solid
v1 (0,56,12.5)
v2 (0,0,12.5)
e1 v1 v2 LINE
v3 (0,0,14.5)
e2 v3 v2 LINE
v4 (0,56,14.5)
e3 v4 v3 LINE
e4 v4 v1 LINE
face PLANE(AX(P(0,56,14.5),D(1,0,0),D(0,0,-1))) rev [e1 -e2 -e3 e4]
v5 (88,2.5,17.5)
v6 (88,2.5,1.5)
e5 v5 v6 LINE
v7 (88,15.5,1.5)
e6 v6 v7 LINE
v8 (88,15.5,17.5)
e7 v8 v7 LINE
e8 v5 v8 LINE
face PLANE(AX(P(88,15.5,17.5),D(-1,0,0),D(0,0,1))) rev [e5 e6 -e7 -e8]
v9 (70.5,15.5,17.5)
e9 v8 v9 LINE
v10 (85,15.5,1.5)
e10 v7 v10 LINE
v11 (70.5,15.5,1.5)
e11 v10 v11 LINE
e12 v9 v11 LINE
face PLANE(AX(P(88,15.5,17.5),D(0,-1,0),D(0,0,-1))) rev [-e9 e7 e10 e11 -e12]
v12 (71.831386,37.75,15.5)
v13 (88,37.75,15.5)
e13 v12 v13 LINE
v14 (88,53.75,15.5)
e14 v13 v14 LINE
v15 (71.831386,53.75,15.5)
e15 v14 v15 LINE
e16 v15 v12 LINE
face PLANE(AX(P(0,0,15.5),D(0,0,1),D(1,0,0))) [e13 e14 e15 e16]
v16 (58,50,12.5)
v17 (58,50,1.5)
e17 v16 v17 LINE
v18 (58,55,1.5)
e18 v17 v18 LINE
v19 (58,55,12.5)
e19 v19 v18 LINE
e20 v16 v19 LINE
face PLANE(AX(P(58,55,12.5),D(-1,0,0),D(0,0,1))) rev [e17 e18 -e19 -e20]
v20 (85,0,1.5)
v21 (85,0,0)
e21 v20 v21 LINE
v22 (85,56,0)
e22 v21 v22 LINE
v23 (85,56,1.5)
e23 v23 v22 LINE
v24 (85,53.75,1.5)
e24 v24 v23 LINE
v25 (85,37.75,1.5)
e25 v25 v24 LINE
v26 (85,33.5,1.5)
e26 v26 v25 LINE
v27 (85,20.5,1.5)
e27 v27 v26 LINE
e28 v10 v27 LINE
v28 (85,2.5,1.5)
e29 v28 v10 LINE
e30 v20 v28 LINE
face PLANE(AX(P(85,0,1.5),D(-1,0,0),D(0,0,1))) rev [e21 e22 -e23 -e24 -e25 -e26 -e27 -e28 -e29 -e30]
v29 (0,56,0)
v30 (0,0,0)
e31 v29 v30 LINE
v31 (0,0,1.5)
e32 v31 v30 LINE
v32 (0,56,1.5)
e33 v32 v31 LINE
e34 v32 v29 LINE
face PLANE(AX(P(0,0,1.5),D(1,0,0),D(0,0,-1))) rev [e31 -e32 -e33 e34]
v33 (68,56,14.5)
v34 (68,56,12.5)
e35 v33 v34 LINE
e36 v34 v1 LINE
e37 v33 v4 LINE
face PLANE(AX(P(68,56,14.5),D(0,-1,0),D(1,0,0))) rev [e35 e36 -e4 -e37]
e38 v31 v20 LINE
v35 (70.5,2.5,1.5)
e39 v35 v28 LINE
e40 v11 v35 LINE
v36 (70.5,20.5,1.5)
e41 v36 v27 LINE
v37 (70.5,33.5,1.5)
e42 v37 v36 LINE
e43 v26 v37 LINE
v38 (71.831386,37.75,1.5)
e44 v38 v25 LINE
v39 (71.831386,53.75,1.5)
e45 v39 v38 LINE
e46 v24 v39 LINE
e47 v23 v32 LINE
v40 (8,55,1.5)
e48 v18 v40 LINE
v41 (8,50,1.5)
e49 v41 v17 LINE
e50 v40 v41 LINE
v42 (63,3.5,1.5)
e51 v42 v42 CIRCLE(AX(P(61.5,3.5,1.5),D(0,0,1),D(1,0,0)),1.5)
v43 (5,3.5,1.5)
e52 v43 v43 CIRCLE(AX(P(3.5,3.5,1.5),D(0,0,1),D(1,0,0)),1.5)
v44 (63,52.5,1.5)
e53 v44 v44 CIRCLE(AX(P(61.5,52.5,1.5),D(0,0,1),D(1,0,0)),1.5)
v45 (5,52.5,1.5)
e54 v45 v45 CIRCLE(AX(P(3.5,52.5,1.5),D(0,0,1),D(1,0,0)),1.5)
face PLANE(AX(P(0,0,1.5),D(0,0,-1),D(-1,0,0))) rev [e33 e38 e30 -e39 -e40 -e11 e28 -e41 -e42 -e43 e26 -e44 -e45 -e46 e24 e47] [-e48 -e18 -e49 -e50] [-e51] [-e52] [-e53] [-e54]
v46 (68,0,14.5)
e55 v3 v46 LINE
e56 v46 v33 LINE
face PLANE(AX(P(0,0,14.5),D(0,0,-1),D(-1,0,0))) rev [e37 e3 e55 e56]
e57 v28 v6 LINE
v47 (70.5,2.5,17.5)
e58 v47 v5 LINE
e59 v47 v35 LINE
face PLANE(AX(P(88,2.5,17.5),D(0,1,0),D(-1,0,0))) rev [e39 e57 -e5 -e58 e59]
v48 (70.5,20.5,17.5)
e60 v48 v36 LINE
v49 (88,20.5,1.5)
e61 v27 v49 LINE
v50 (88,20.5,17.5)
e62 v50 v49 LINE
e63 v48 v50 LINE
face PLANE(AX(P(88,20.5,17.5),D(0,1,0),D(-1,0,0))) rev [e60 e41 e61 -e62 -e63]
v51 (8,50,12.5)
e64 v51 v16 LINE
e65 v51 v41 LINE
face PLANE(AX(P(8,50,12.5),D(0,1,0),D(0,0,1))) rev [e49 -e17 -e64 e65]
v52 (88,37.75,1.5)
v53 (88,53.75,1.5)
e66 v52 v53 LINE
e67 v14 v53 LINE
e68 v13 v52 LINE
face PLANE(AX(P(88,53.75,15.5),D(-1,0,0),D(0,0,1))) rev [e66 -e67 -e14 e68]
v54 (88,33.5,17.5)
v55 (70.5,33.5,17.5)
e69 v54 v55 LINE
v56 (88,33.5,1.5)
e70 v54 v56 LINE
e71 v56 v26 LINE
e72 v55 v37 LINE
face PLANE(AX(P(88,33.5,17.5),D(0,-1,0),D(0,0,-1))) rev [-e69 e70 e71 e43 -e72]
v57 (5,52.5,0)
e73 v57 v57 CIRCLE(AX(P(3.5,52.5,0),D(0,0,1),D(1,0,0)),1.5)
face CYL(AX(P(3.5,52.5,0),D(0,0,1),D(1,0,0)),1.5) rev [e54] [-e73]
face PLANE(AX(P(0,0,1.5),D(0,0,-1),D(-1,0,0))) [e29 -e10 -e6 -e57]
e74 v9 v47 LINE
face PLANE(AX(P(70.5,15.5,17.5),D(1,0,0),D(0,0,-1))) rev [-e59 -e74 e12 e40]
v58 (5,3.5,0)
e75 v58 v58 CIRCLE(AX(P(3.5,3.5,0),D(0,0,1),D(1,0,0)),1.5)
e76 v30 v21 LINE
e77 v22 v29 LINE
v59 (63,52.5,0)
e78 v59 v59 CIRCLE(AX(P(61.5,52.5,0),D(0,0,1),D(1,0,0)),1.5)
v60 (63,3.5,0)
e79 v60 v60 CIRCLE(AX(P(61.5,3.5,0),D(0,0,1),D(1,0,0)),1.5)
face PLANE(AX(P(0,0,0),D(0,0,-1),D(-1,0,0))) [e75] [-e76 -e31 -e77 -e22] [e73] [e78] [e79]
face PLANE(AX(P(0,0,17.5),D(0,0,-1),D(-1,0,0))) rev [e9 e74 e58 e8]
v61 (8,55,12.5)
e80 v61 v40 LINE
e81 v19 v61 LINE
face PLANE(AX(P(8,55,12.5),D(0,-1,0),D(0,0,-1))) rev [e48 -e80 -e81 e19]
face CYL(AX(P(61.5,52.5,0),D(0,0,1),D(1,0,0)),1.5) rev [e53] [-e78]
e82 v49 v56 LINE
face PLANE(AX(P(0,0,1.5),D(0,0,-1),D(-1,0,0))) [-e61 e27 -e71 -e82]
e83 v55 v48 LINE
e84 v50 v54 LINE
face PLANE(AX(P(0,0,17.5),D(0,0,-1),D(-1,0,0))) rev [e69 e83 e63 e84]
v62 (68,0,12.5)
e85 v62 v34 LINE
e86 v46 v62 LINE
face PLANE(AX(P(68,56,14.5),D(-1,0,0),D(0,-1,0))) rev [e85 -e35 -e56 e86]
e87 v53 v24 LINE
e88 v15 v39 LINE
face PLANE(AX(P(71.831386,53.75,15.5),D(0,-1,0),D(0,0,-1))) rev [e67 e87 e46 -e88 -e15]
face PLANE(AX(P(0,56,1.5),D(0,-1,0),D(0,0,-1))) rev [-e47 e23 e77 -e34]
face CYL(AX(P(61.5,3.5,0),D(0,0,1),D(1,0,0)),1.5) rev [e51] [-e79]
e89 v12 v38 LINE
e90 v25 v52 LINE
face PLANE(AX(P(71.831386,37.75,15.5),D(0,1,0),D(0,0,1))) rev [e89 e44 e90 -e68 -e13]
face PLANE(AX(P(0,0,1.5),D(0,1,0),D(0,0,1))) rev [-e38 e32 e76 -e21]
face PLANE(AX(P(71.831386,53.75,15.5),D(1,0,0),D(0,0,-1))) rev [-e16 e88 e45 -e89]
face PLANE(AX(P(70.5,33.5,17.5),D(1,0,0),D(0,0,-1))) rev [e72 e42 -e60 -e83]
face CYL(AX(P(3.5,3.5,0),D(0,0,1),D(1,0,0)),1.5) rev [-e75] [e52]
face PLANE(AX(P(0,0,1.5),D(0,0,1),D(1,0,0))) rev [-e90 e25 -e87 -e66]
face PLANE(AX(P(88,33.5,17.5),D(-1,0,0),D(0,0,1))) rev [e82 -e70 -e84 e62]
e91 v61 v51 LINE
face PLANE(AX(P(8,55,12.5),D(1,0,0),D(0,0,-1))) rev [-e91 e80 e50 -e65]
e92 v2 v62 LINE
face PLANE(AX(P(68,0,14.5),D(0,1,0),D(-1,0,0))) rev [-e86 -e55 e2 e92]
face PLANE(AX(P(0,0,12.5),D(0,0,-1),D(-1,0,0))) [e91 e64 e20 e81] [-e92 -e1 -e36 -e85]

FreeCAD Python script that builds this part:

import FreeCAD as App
import Part
import Sketcher
from FreeCAD import Vector
Q = App.Units.Quantity

doc = App.newDocument("Part")
params = doc.addObject("Spreadsheet::Sheet", "Params")
for row, (alias, value) in enumerate([
    ("sketch1_width", "85 mm"),
    ("sketch1_height", "56 mm"),
    ("pad1_length", "1.5 mm"),
    ("sketch2_diameter", "3 mm"),
    ("sketch3_height", "13 mm"),
    ("sketch3_width", "17.5 mm"),
    ("pad2_length", "16 mm"),
    ("sketch4_height", "16 mm"),
    ("pad3_length", "14 mm"),
    ("sketch5_width", "50 mm"),
    ("sketch5_height", "5 mm"),
    ("pad4_length", "11 mm"),
    ("sketch6_width", "68 mm"),
    ("sketch6_height", "56 mm"),
    ("pad5_length", "2 mm"),
], start=1):
    params.set(f"A{row}", alias)
    params.set(f"B{row}", "=" + value)
    params.setAlias(f"B{row}", alias)

body = doc.addObject("PartDesign::Body", "Body")

sketch1 = doc.addObject("Sketcher::SketchObject", "Sketch")
body.addObject(sketch1)
sketch1.AttachmentSupport = (doc.XY_Plane, [""])
sketch1.MapMode = "FlatFace"
sketch1.addGeometry([
    Part.LineSegment(Vector(0, 56, 0), Vector(0, 0, 0)),
    Part.LineSegment(Vector(0, 0, 0), Vector(85, 0, 0)),
    Part.LineSegment(Vector(85, 0, 0), Vector(85, 56, 0)),
    Part.LineSegment(Vector(85, 56, 0), Vector(0, 56, 0)),
], False)
sketch1.addConstraint([
    Sketcher.Constraint("Coincident", 0, 2, 1, 1),
    Sketcher.Constraint("Coincident", 1, 2, 2, 1),
    Sketcher.Constraint("Coincident", 2, 2, 3, 1),
    Sketcher.Constraint("Coincident", 3, 2, 0, 1),
    Sketcher.Constraint("Vertical", 0),
    Sketcher.Constraint("Horizontal", 1),
    Sketcher.Constraint("Vertical", 2),
    Sketcher.Constraint("Horizontal", 3),
    Sketcher.Constraint("Coincident", 0, 2, -1, 1),
    Sketcher.Constraint("DistanceX", 1, 1, 1, 2, Q("85 mm")),
    Sketcher.Constraint("DistanceY", 0, 2, 0, 1, Q("56 mm")),
])
sketch1.setExpression("Constraints[9]", "Params.sketch1_width")
sketch1.setExpression("Constraints[10]", "Params.sketch1_height")
pad1 = doc.addObject("PartDesign::Pad", "Pad")
body.addObject(pad1)
pad1.Profile = sketch1
pad1.setExpression("Length", "Params.pad1_length")

sketch2 = doc.addObject("Sketcher::SketchObject", "Sketch001")
body.addObject(sketch2)
sketch2.AttachmentSupport = (doc.XY_Plane, [""])
sketch2.MapMode = "FlatFace"
sketch2.AttachmentOffset = App.Placement(Vector(0, 0, 1.5), App.Rotation())
sketch2.addGeometry([
    Part.Circle(Vector(3.5, 52.5, 0), Vector(0, 0, 1), 1.5),
    Part.Circle(Vector(3.5, 3.5, 0), Vector(0, 0, 1), 1.5),
    Part.Circle(Vector(61.5, 52.5, 0), Vector(0, 0, 1), 1.5),
    Part.Circle(Vector(61.5, 3.5, 0), Vector(0, 0, 1), 1.5),
], False)
sketch2.addConstraint([
    Sketcher.Constraint("Equal", 0, 1),
    Sketcher.Constraint("Equal", 1, 2),
    Sketcher.Constraint("Equal", 2, 3),
    Sketcher.Constraint("Horizontal", 0, 3, 2, 3),
    Sketcher.Constraint("Horizontal", 1, 3, 3, 3),
    Sketcher.Constraint("Vertical", 0, 3, 1, 3),
    Sketcher.Constraint("Vertical", 2, 3, 3, 3),
    Sketcher.Constraint("Diameter", 0, Q("3 mm")),
    Sketcher.Constraint("DistanceY", 1, 3, 0, 3, Q("49 mm")),
    Sketcher.Constraint("DistanceX", 0, 3, 2, 3, Q("58 mm")),
    Sketcher.Constraint("DistanceX", -1, 1, 0, 3, Q("3.5 mm")),
    Sketcher.Constraint("DistanceY", -1, 1, 0, 3, Q("52.5 mm")),
])
sketch2.setExpression("Constraints[7]", "Params.sketch2_diameter")
pocket1 = doc.addObject("PartDesign::Pocket", "Pocket")
body.addObject(pocket1)
pocket1.Profile = sketch2
pocket1.Type = "ThroughAll"

sketch3 = doc.addObject("Sketcher::SketchObject", "Sketch002")
body.addObject(sketch3)
sketch3.AttachmentSupport = (doc.XY_Plane, [""])
sketch3.MapMode = "FlatFace"
sketch3.AttachmentOffset = App.Placement(Vector(0, 0, 1.5), App.Rotation())
sketch3.addGeometry([
    Part.LineSegment(Vector(70.5, 15.5, 0), Vector(70.5, 2.5, 0)),
    Part.LineSegment(Vector(70.5, 2.5, 0), Vector(88, 2.5, 0)),
    Part.LineSegment(Vector(88, 2.5, 0), Vector(88, 15.5, 0)),
    Part.LineSegment(Vector(88, 15.5, 0), Vector(70.5, 15.5, 0)),
    Part.LineSegment(Vector(70.5, 33.5, 0), Vector(70.5, 20.5, 0)),
    Part.LineSegment(Vector(70.5, 20.5, 0), Vector(88, 20.5, 0)),
    Part.LineSegment(Vector(88, 20.5, 0), Vector(88, 33.5, 0)),
    Part.LineSegment(Vector(88, 33.5, 0), Vector(70.5, 33.5, 0)),
], False)
sketch3.addConstraint([
    Sketcher.Constraint("Coincident", 0, 2, 1, 1),
    Sketcher.Constraint("Coincident", 1, 2, 2, 1),
    Sketcher.Constraint("Coincident", 2, 2, 3, 1),
    Sketcher.Constraint("Coincident", 3, 2, 0, 1),
    Sketcher.Constraint("Coincident", 4, 2, 5, 1),
    Sketcher.Constraint("Coincident", 5, 2, 6, 1),
    Sketcher.Constraint("Coincident", 6, 2, 7, 1),
    Sketcher.Constraint("Coincident", 7, 2, 4, 1),
    Sketcher.Constraint("Vertical", 0),
    Sketcher.Constraint("Horizontal", 1),
    Sketcher.Constraint("Vertical", 2),
    Sketcher.Constraint("Horizontal", 3),
    Sketcher.Constraint("Vertical", 4),
    Sketcher.Constraint("Horizontal", 5),
    Sketcher.Constraint("Vertical", 6),
    Sketcher.Constraint("Horizontal", 7),
    Sketcher.Constraint("Vertical", 3, 2, 4, 2),
    Sketcher.Constraint("Vertical", 2, 2, 5, 2),
    Sketcher.Constraint("Equal", 2, 4),
    Sketcher.Constraint("DistanceY", 0, 2, 0, 1, Q("13 mm")),
    Sketcher.Constraint("DistanceX", 1, 1, 1, 2, Q("17.5 mm")),
    Sketcher.Constraint("DistanceX", -1, 1, 1, 2, Q("88 mm")),
    Sketcher.Constraint("DistanceY", 3, 2, 4, 2, Q("5 mm")),
    Sketcher.Constraint("DistanceY", -1, 1, 0, 2, Q("2.5 mm")),
])
sketch3.setExpression("Constraints[19]", "Params.sketch3_height")
sketch3.setExpression("Constraints[20]", "Params.sketch3_width")
pad2 = doc.addObject("PartDesign::Pad", "Pad001")
body.addObject(pad2)
pad2.Profile = sketch3
pad2.setExpression("Length", "Params.pad2_length")

sketch4 = doc.addObject("Sketcher::SketchObject", "Sketch003")
body.addObject(sketch4)
sketch4.AttachmentSupport = (doc.XY_Plane, [""])
sketch4.MapMode = "FlatFace"
sketch4.AttachmentOffset = App.Placement(Vector(0, 0, 1.5), App.Rotation())
sketch4.addGeometry([
    Part.LineSegment(Vector(71.831386, 53.75, 0), Vector(71.831386, 37.75, 0)),
    Part.LineSegment(Vector(71.831386, 37.75, 0), Vector(88, 37.75, 0)),
    Part.LineSegment(Vector(88, 37.75, 0), Vector(88, 53.75, 0)),
    Part.LineSegment(Vector(88, 53.75, 0), Vector(71.831386, 53.75, 0)),
], False)
sketch4.addConstraint([
    Sketcher.Constraint("Coincident", 0, 2, 1, 1),
    Sketcher.Constraint("Coincident", 1, 2, 2, 1),
    Sketcher.Constraint("Coincident", 2, 2, 3, 1),
    Sketcher.Constraint("Coincident", 3, 2, 0, 1),
    Sketcher.Constraint("Vertical", 0),
    Sketcher.Constraint("Horizontal", 1),
    Sketcher.Constraint("Vertical", 2),
    Sketcher.Constraint("Horizontal", 3),
    Sketcher.Constraint("DistanceY", 0, 2, 0, 1, Q("16 mm")),
    Sketcher.Constraint("DistanceX", -1, 1, 1, 2, Q("88 mm")),
    Sketcher.Constraint("DistanceY", -1, 1, 0, 2, Q("37.75 mm")),
    Sketcher.Constraint("DistanceX", 1, 1, 1, 2, Q("16.168614 mm")),
])
sketch4.setExpression("Constraints[8]", "Params.sketch4_height")
pad3 = doc.addObject("PartDesign::Pad", "Pad002")
body.addObject(pad3)
pad3.Profile = sketch4
pad3.setExpression("Length", "Params.pad3_length")

sketch5 = doc.addObject("Sketcher::SketchObject", "Sketch004")
body.addObject(sketch5)
sketch5.AttachmentSupport = (doc.XY_Plane, [""])
sketch5.MapMode = "FlatFace"
sketch5.AttachmentOffset = App.Placement(Vector(0, 0, 1.5), App.Rotation())
sketch5.addGeometry([
    Part.LineSegment(Vector(8, 55, 0), Vector(8, 50, 0)),
    Part.LineSegment(Vector(8, 50, 0), Vector(58, 50, 0)),
    Part.LineSegment(Vector(58, 50, 0), Vector(58, 55, 0)),
    Part.LineSegment(Vector(58, 55, 0), Vector(8, 55, 0)),
], False)
sketch5.addConstraint([
    Sketcher.Constraint("Coincident", 0, 2, 1, 1),
    Sketcher.Constraint("Coincident", 1, 2, 2, 1),
    Sketcher.Constraint("Coincident", 2, 2, 3, 1),
    Sketcher.Constraint("Coincident", 3, 2, 0, 1),
    Sketcher.Constraint("Vertical", 0),
    Sketcher.Constraint("Horizontal", 1),
    Sketcher.Constraint("Vertical", 2),
    Sketcher.Constraint("Horizontal", 3),
    Sketcher.Constraint("DistanceX", 1, 1, 1, 2, Q("50 mm")),
    Sketcher.Constraint("DistanceY", 0, 2, 0, 1, Q("5 mm")),
    Sketcher.Constraint("DistanceX", -1, 1, 0, 2, Q("8 mm")),
    Sketcher.Constraint("DistanceY", -1, 1, 0, 2, Q("50 mm")),
])
sketch5.setExpression("Constraints[8]", "Params.sketch5_width")
sketch5.setExpression("Constraints[9]", "Params.sketch5_height")
pad4 = doc.addObject("PartDesign::Pad", "Pad003")
body.addObject(pad4)
pad4.Profile = sketch5
pad4.setExpression("Length", "Params.pad4_length")

sketch6 = doc.addObject("Sketcher::SketchObject", "Sketch005")
body.addObject(sketch6)
sketch6.AttachmentSupport = (doc.XY_Plane, [""])
sketch6.MapMode = "FlatFace"
sketch6.AttachmentOffset = App.Placement(Vector(0, 0, 12.5), App.Rotation())
sketch6.addGeometry([
    Part.LineSegment(Vector(0, 56, 0), Vector(0, 0, 0)),
    Part.LineSegment(Vector(0, 0, 0), Vector(68, 0, 0)),
    Part.LineSegment(Vector(68, 0, 0), Vector(68, 56, 0)),
    Part.LineSegment(Vector(68, 56, 0), Vector(0, 56, 0)),
], False)
sketch6.addConstraint([
    Sketcher.Constraint("Coincident", 0, 2, 1, 1),
    Sketcher.Constraint("Coincident", 1, 2, 2, 1),
    Sketcher.Constraint("Coincident", 2, 2, 3, 1),
    Sketcher.Constraint("Coincident", 3, 2, 0, 1),
    Sketcher.Constraint("Vertical", 0),
    Sketcher.Constraint("Horizontal", 1),
    Sketcher.Constraint("Vertical", 2),
    Sketcher.Constraint("Horizontal", 3),
    Sketcher.Constraint("Coincident", 0, 2, -1, 1),
    Sketcher.Constraint("DistanceX", 1, 1, 1, 2, Q("68 mm")),
    Sketcher.Constraint("DistanceY", 0, 2, 0, 1, Q("56 mm")),
])
sketch6.setExpression("Constraints[9]", "Params.sketch6_width")
sketch6.setExpression("Constraints[10]", "Params.sketch6_height")
pad5 = doc.addObject("PartDesign::Pad", "Pad004")
body.addObject(pad5)
pad5.Profile = sketch6
pad5.setExpression("Length", "Params.pad5_length")

doc.recompute()
